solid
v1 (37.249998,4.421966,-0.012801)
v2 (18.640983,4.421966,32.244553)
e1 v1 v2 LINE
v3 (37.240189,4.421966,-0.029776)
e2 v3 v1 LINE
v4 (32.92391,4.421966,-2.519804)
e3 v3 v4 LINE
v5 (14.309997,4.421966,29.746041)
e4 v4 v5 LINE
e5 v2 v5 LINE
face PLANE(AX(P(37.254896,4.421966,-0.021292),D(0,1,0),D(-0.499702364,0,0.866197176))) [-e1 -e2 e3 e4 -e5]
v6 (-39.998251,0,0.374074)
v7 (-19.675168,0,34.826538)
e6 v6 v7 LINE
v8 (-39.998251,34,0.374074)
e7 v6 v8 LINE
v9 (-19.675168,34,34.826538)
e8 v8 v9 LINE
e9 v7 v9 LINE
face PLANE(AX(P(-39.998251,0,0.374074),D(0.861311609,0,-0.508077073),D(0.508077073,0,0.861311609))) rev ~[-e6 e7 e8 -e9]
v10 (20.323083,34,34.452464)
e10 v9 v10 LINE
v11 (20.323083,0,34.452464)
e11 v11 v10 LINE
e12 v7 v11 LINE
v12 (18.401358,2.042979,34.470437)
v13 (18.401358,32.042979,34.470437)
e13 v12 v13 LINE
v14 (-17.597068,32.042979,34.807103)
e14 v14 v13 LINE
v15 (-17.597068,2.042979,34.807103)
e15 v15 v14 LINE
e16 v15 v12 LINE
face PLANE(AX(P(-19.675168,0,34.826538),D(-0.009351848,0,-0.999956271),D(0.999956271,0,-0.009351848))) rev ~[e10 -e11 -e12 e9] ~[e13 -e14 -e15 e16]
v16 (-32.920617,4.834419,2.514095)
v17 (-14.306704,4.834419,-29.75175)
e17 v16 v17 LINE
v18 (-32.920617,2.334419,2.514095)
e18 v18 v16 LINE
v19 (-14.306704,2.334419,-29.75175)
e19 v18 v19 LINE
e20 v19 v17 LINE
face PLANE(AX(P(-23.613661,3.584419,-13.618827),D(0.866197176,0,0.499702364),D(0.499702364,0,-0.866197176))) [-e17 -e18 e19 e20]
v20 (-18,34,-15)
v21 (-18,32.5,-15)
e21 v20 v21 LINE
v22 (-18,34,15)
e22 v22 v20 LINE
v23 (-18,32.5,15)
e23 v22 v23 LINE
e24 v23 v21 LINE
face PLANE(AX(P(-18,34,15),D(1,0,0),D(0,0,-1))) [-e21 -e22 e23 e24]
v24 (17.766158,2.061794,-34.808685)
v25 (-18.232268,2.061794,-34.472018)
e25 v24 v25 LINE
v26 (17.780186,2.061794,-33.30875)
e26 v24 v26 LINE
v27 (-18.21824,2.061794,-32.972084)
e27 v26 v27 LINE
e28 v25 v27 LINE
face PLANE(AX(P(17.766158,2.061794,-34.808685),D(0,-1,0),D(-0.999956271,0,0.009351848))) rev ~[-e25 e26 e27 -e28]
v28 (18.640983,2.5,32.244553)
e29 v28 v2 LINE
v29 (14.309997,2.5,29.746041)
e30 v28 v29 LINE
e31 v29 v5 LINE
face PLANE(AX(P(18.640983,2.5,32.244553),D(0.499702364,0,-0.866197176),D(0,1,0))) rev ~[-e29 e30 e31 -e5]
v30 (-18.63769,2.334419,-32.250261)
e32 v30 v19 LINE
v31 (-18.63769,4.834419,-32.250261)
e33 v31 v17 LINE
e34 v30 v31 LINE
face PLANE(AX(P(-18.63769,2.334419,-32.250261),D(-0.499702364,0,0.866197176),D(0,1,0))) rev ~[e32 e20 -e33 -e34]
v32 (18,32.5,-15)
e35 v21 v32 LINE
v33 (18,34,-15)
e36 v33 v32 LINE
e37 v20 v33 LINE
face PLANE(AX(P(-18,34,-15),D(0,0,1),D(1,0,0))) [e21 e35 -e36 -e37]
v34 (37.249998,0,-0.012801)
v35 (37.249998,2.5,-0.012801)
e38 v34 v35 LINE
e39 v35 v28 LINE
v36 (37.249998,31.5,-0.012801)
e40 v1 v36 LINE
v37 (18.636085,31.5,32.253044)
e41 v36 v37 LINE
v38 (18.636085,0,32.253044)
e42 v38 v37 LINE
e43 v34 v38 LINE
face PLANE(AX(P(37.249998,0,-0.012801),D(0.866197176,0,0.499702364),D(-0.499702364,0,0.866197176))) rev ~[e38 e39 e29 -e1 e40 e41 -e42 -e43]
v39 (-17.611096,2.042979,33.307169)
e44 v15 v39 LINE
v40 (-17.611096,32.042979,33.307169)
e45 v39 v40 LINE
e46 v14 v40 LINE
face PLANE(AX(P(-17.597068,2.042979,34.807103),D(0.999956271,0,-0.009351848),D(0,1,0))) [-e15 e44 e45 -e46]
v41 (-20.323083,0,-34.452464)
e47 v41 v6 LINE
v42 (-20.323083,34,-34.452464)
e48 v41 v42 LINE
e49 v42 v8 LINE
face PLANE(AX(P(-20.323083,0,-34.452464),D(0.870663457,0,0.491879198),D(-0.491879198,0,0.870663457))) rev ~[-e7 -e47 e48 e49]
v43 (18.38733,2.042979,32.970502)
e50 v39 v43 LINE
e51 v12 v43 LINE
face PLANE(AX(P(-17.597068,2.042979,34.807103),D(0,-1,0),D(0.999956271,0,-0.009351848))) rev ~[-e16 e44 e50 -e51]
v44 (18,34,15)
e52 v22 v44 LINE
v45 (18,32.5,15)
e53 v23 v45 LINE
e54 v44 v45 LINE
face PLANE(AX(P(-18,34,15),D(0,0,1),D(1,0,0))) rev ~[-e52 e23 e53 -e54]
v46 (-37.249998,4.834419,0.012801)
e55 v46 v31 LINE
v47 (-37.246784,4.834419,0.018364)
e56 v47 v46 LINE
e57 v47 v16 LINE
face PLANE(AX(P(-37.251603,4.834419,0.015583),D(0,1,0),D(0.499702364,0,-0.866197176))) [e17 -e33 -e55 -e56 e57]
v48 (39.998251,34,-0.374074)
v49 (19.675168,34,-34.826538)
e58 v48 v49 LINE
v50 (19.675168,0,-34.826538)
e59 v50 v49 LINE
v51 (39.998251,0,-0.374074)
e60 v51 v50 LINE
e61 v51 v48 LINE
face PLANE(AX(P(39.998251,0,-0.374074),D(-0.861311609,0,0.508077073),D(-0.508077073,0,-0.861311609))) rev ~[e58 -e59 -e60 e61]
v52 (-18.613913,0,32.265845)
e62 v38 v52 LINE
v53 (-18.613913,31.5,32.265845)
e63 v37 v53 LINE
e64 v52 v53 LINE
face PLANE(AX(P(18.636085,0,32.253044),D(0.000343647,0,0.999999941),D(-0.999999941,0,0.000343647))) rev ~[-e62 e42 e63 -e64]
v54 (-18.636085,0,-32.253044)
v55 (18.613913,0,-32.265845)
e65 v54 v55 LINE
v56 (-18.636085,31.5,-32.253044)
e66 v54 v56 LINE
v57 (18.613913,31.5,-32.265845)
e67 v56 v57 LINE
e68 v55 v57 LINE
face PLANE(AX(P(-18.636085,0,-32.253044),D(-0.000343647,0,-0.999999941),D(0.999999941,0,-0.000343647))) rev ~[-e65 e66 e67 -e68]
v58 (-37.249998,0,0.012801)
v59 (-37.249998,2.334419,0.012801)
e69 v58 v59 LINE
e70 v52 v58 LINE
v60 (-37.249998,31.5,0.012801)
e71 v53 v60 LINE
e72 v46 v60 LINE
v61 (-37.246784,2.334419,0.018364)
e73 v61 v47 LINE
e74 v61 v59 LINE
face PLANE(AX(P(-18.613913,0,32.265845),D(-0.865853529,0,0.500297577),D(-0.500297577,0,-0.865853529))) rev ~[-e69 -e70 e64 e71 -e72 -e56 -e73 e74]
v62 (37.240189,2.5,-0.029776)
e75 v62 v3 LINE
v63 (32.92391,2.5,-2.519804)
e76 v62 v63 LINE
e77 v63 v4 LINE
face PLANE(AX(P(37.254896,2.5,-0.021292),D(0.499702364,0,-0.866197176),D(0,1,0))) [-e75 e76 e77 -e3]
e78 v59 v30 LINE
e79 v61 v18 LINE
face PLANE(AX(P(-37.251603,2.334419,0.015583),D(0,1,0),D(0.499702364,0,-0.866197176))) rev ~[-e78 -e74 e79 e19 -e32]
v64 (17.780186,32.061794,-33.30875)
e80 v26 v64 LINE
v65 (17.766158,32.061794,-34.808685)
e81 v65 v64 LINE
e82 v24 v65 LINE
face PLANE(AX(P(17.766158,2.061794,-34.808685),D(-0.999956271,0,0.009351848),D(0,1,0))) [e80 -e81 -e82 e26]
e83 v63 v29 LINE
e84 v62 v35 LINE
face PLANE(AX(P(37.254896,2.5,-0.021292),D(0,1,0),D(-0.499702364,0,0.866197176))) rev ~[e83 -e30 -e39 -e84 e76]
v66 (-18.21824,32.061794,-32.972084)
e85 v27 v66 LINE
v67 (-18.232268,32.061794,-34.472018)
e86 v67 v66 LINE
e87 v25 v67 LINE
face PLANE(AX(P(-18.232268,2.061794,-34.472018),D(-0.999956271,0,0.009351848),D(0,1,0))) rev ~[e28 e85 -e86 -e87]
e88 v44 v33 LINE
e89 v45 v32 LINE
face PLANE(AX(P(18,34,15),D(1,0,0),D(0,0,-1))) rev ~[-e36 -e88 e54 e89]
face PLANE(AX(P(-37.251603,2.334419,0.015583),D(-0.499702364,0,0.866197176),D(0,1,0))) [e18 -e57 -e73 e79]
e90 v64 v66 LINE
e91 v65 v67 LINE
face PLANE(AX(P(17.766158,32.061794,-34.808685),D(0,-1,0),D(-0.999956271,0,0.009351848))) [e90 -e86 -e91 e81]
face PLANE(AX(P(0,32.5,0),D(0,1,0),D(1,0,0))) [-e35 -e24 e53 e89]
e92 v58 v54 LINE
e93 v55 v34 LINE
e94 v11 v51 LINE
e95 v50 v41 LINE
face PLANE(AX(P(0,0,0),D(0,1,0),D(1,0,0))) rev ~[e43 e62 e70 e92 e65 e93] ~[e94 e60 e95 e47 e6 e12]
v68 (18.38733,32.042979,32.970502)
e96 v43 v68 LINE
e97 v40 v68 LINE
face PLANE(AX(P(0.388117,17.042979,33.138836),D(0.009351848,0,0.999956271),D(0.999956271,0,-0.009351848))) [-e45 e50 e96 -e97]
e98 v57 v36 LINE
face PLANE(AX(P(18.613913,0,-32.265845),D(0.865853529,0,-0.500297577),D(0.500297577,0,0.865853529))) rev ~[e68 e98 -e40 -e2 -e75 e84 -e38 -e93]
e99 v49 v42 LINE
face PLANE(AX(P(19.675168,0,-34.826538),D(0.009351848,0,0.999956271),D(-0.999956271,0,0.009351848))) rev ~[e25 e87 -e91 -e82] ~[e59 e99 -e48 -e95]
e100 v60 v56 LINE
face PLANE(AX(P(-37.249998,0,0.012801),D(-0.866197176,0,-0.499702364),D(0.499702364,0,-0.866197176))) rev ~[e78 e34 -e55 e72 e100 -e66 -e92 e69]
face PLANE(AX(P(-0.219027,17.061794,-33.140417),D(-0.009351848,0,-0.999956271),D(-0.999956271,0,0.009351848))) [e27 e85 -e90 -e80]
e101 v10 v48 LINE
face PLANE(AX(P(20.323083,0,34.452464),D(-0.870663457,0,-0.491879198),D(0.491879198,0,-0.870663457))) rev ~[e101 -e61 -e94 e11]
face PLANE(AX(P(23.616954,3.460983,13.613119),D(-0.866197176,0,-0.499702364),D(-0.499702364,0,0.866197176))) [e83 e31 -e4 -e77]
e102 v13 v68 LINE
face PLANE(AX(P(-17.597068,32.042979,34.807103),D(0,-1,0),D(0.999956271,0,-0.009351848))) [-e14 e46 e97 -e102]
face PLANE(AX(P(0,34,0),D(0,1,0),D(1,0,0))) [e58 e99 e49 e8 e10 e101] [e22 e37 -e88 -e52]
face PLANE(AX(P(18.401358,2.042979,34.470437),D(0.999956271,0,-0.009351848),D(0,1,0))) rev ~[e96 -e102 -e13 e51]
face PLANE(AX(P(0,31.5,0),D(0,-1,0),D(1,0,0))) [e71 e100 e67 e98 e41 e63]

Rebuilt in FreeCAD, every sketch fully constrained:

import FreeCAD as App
import Part
import Sketcher


def add_polygon(sketch, points):
    """Adds a closed chain of lines whose ends are joined by coincident constraints."""
    first, n = sketch.GeometryCount, len(points)
    for a, b in zip(points, points[1:] + points[:1]):
        sketch.addGeometry(Part.LineSegment(App.Vector(*a, 0), App.Vector(*b, 0)), False)
    for i in range(n):
        sketch.addConstraint(Sketcher.Constraint("Coincident", first + i, 2, first + (i + 1) % n, 1))

doc = App.newDocument("Part")
params = doc.addObject("Spreadsheet::Sheet", "Params")
for row, (alias, value) in enumerate([
    ("sketch1_length", "40 mm"),
    ("pad1_length", "34 mm"),
    ("sketch2_width", "36 mm"),
    ("sketch2_height", "30 mm"),
    ("pocket1_length", "1.5 mm"),
    ("sketch3_width", "36 mm"),
    ("sketch3_height", "30 mm"),
    ("pocket2_length", "1.5 mm"),
    ("sketch4_width", "36 mm"),
    ("sketch4_height", "30 mm"),
    ("pocket3_length", "1.5 mm"),
    ("sketch5_length", "37.25 mm"),
    ("pocket4_length", "31.5 mm"),
    ("sketch6_width", "37.25 mm"),
    ("pad2_length", "5 mm"),
    ("sketch7_height", "2.5 mm"),
    ("sketch7_width", "37.25 mm"),
    ("pad3_length", "5 mm"),
], start=1):
    params.set(f"A{row}", alias)
    params.set(f"B{row}", "=" + value)
    params.setAlias(f"B{row}", alias)

body = doc.addObject("PartDesign::Body", "Body")

# Sketch on XZ plane
sketch1 = body.newObject("Sketcher::SketchObject", "Sketch")
sketch1.AttachmentSupport = (doc.getObject("XZ_Plane"), [""])
sketch1.MapMode = "FlatFace"
add_polygon(sketch1, [(20.323083, 34.452464), (39.998251, -0.374074), (19.675168, -34.826538), (-20.323083, -34.452464), (-39.998251, 0.374074), (-19.675168, 34.826538)])  # lines 0-5
sketch1.addConstraint(Sketcher.Constraint("Symmetric", 0, 2, 3, 2, -1, 1))
sketch1.addConstraint(Sketcher.Constraint("Symmetric", 1, 2, 4, 2, -1, 1))
sketch1.addConstraint(Sketcher.Constraint("Symmetric", 2, 2, 5, 2, -1, 1))
sketch1.addConstraint(Sketcher.Constraint("Equal", 0, 1))
sketch1.addConstraint(Sketcher.Constraint("Equal", 1, 2))
sketch1.addConstraint(Sketcher.Constraint("Distance", 0, 40.0))
sketch1.addConstraint(Sketcher.Constraint("DistanceX", 3, 2, 0, 2, 79.996502))
sketch1.addConstraint(Sketcher.Constraint("DistanceY", 1, 2, -1, 1, 34.826538))
sketch1.addConstraint(Sketcher.Constraint("DistanceY", 2, 2, 0, 2, 34.07839))
sketch1.setExpression("Constraints[11]", "Params.sketch1_length")
pad1 = body.newObject("PartDesign::Pad", "Pad")
pad1.Profile = sketch1
pad1.setExpression("Length", "Params.pad1_length")
pad1.Reversed = True

# Sketch on an angled plane
sketch2 = body.newObject("Sketcher::SketchObject", "Sketch001")
sketch2.Placement = App.Placement(App.Vector(0.323958, 0, 34.639501), App.Rotation(App.Vector(0.999956271, 0, -0.009351848), App.Vector(0, 1.000000001, 0), App.Vector(0.009351848, 0, 0.999956271), "ZXY"))
add_polygon(sketch2, [(-17.921809, 32.042979), (-17.921809, 2.042979), (18.078191, 2.042979), (18.078191, 32.042979)])  # lines 0-3
sketch2.addConstraint(Sketcher.Constraint("Vertical", 0))
sketch2.addConstraint(Sketcher.Constraint("Horizontal", 1))
sketch2.addConstraint(Sketcher.Constraint("Vertical", 2))
sketch2.addConstraint(Sketcher.Constraint("Horizontal", 3))
sketch2.addConstraint(Sketcher.Constraint("DistanceX", 1, 1, 1, 2, 36.0))
sketch2.addConstraint(Sketcher.Constraint("DistanceY", 0, 2, 0, 1, 30.0))
sketch2.addConstraint(Sketcher.Constraint("DistanceX", 0, 2, -1, 1, 17.921809))
sketch2.addConstraint(Sketcher.Constraint("DistanceY", -1, 1, 0, 2, 2.042979))
sketch2.setExpression("Constraints[8]", "Params.sketch2_width")
sketch2.setExpression("Constraints[9]", "Params.sketch2_height")
pocket1 = body.newObject("PartDesign::Pocket", "Pocket")
pocket1.Profile = sketch2
pocket1.setExpression("Length", "Params.pocket1_length")

# Sketch on an angled plane
sketch3 = body.newObject("Sketcher::SketchObject", "Sketch002")
sketch3.Placement = App.Placement(App.Vector(-0.323958, 0, -34.639501), App.Rotation(App.Vector(-0.999956271, 0, 0.009351848), App.Vector(0, 1.000000001, 0), App.Vector(-0.009351848, 0, -0.999956271), "ZXY"))
add_polygon(sketch3, [(-18.090906, 32.061794), (-18.090906, 2.061794), (17.909094, 2.061794), (17.909094, 32.061794)])  # lines 0-3
sketch3.addConstraint(Sketcher.Constraint("Vertical", 0))
sketch3.addConstraint(Sketcher.Constraint("Horizontal", 1))
sketch3.addConstraint(Sketcher.Constraint("Vertical", 2))
sketch3.addConstraint(Sketcher.Constraint("Horizontal", 3))
sketch3.addConstraint(Sketcher.Constraint("DistanceX", 1, 1, 1, 2, 36.0))
sketch3.addConstraint(Sketcher.Constraint("DistanceY", 0, 2, 0, 1, 30.0))
sketch3.addConstraint(Sketcher.Constraint("DistanceX", 0, 2, -1, 1, 18.090906))
sketch3.addConstraint(Sketcher.Constraint("DistanceY", -1, 1, 0, 2, 2.061794))
sketch3.setExpression("Constraints[8]", "Params.sketch3_width")
sketch3.setExpression("Constraints[9]", "Params.sketch3_height")
pocket2 = body.newObject("PartDesign::Pocket", "Pocket001")
pocket2.Profile = sketch3
pocket2.setExpression("Length", "Params.pocket2_length")

# Sketch on XZ plane
sketch4 = body.newObject("Sketcher::SketchObject", "Sketch003")
sketch4.AttachmentSupport = (doc.getObject("XZ_Plane"), [""])
sketch4.MapMode = "FlatFace"
sketch4.AttachmentOffset = App.Placement(App.Vector(0, 0, -34), App.Rotation())
add_polygon(sketch4, [(-18, -15), (-18, 15), (18, 15), (18, -15)])  # lines 0-3
sketch4.addConstraint(Sketcher.Constraint("Vertical", 0))
sketch4.addConstraint(Sketcher.Constraint("Horizontal", 1))
sketch4.addConstraint(Sketcher.Constraint("Vertical", 2))
sketch4.addConstraint(Sketcher.Constraint("Horizontal", 3))
sketch4.addConstraint(Sketcher.Constraint("Symmetric", 0, 2, 2, 2, -1, 1))
sketch4.addConstraint(Sketcher.Constraint("DistanceX", 1, 1, 1, 2, 36.0))
sketch4.addConstraint(Sketcher.Constraint("DistanceY", 0, 1, 0, 2, 30.0))
sketch4.setExpression("Constraints[9]", "Params.sketch4_width")
sketch4.setExpression("Constraints[10]", "Params.sketch4_height")
pocket3 = body.newObject("PartDesign::Pocket", "Pocket002")
pocket3.Profile = sketch4
pocket3.setExpression("Length", "Params.pocket3_length")
pocket3.Reversed = True

# Sketch on XZ plane
sketch5 = body.newObject("Sketcher::SketchObject", "Sketch004")
sketch5.AttachmentSupport = (doc.getObject("XZ_Plane"), [""])
sketch5.MapMode = "FlatFace"
add_polygon(sketch5, [(37.249998, -0.012801), (18.636085, 32.253044), (-18.613913, 32.265845), (-37.249998, 0.012801), (-18.636085, -32.253044), (18.613913, -32.265845)])  # lines 0-5
sketch5.addConstraint(Sketcher.Constraint("Symmetric", 0, 2, 3, 2, -1, 1))
sketch5.addConstraint(Sketcher.Constraint("Symmetric", 1, 2, 4, 2, -1, 1))
sketch5.addConstraint(Sketcher.Constraint("Symmetric", 2, 2, 5, 2, -1, 1))
sketch5.addConstraint(Sketcher.Constraint("Equal", 0, 1))
sketch5.addConstraint(Sketcher.Constraint("Equal", 1, 2))
sketch5.addConstraint(Sketcher.Constraint("Distance", 0, 37.25))
sketch5.addConstraint(Sketcher.Constraint("DistanceY", -1, 1, 2, 2, 0.012801))
sketch5.addConstraint(Sketcher.Constraint("DistanceY", 0, 2, 1, 2, 0.012801))
sketch5.addConstraint(Sketcher.Constraint("DistanceY", 3, 2, 1, 2, 64.518889))
sketch5.setExpression("Constraints[11]", "Params.sketch5_length")
pocket4 = body.newObject("PartDesign::Pocket", "Pocket003")
pocket4.Profile = sketch5
pocket4.setExpression("Length", "Params.pocket4_length")

# Sketch on an angled plane
sketch6 = body.newObject("Sketcher::SketchObject", "Sketch005")
sketch6.Placement = App.Placement(App.Vector(27.943041, 0, 16.120122), App.Rotation(App.Vector(-0.499702364, 0, 0.866197176), App.Vector(0, 1, 0), App.Vector(-0.866197176, 0, -0.499702364), "ZXY"))
add_polygon(sketch6, [(-18.634803, 4.421966), (-18.634803, 2.5), (18.615197, 2.5), (18.615197, 4.421966)])  # lines 0-3
sketch6.addConstraint(Sketcher.Constraint("Vertical", 0))
sketch6.addConstraint(Sketcher.Constraint("Horizontal", 1))
sketch6.addConstraint(Sketcher.Constraint("Vertical", 2))
sketch6.addConstraint(Sketcher.Constraint("Horizontal", 3))
sketch6.addConstraint(Sketcher.Constraint("DistanceX", 1, 1, 1, 2, 37.25))
sketch6.addConstraint(Sketcher.Constraint("DistanceY", -1, 1, 0, 2, 2.5))
sketch6.addConstraint(Sketcher.Constraint("DistanceY", 0, 2, 0, 1, 1.921966))
sketch6.addConstraint(Sketcher.Constraint("DistanceX", 0, 2, -1, 1, 18.634803))
sketch6.setExpression("Constraints[8]", "Params.sketch6_width")
pad2 = body.newObject("PartDesign::Pad", "Pad001")
pad2.Profile = sketch6
pad2.setExpression("Length", "Params.pad2_length")

# Sketch on an angled plane
sketch7 = body.newObject("Sketcher::SketchObject", "Sketch006")
sketch7.Placement = App.Placement(App.Vector(-27.943041, 0, -16.120122), App.Rotation(App.Vector(0.499702364, 0, -0.866197176), App.Vector(0, 1, 0), App.Vector(0.866197176, 0, 0.499702364), "ZXY"))
add_polygon(sketch7, [(-18.628212, 4.834419), (-18.628212, 2.334419), (18.621788, 2.334419), (18.621788, 4.834419)])  # lines 0-3
sketch7.addConstraint(Sketcher.Constraint("Vertical", 0))
sketch7.addConstraint(Sketcher.Constraint("Horizontal", 1))
sketch7.addConstraint(Sketcher.Constraint("Vertical", 2))
sketch7.addConstraint(Sketcher.Constraint("Horizontal", 3))
sketch7.addConstraint(Sketcher.Constraint("DistanceY", 0, 2, 0, 1, 2.5))
sketch7.addConstraint(Sketcher.Constraint("DistanceX", 1, 1, 1, 2, 37.25))
sketch7.addConstraint(Sketcher.Constraint("DistanceY", -1, 1, 0, 2, 2.334419))
sketch7.addConstraint(Sketcher.Constraint("DistanceX", 0, 2, -1, 1, 18.628212))
sketch7.setExpression("Constraints[8]", "Params.sketch7_height")
sketch7.setExpression("Constraints[9]", "Params.sketch7_width")
pad3 = body.newObject("PartDesign::Pad", "Pad002")
pad3.Profile = sketch7
pad3.setExpression("Length", "Params.pad3_length")

doc.recompute()
